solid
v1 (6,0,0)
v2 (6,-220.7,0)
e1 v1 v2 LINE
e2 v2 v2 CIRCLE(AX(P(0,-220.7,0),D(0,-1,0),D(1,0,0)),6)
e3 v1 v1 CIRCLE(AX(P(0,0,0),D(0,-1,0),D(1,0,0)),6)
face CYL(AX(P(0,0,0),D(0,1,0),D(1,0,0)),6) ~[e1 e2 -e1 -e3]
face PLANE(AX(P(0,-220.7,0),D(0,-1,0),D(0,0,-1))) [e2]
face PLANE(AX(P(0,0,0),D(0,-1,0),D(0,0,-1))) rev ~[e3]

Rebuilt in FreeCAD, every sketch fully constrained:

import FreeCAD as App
import Part
import Sketcher

doc = App.newDocument("Part")
body = doc.addObject("PartDesign::Body", "Body")

sketch1 = doc.addObject("Sketcher::SketchObject", "Sketch")
body.addObject(sketch1)
sketch1.AttachmentSupport = (doc.XZ_Plane, [""])
sketch1.MapMode = "FlatFace"
sketch1.addGeometry(Part.Circle(App.Vector(0, 0, 0), App.Vector(0, 0, 1), 6), False)
sketch1.addConstraint(Sketcher.Constraint("Coincident", 0, 3, -1, 1))
sketch1.addConstraint(Sketcher.Constraint("Diameter", 0, 12.0))
pad1 = doc.addObject("PartDesign::Pad", "Pad")
body.addObject(pad1)
pad1.Profile = sketch1
pad1.Length = 220.7

doc.recompute()
